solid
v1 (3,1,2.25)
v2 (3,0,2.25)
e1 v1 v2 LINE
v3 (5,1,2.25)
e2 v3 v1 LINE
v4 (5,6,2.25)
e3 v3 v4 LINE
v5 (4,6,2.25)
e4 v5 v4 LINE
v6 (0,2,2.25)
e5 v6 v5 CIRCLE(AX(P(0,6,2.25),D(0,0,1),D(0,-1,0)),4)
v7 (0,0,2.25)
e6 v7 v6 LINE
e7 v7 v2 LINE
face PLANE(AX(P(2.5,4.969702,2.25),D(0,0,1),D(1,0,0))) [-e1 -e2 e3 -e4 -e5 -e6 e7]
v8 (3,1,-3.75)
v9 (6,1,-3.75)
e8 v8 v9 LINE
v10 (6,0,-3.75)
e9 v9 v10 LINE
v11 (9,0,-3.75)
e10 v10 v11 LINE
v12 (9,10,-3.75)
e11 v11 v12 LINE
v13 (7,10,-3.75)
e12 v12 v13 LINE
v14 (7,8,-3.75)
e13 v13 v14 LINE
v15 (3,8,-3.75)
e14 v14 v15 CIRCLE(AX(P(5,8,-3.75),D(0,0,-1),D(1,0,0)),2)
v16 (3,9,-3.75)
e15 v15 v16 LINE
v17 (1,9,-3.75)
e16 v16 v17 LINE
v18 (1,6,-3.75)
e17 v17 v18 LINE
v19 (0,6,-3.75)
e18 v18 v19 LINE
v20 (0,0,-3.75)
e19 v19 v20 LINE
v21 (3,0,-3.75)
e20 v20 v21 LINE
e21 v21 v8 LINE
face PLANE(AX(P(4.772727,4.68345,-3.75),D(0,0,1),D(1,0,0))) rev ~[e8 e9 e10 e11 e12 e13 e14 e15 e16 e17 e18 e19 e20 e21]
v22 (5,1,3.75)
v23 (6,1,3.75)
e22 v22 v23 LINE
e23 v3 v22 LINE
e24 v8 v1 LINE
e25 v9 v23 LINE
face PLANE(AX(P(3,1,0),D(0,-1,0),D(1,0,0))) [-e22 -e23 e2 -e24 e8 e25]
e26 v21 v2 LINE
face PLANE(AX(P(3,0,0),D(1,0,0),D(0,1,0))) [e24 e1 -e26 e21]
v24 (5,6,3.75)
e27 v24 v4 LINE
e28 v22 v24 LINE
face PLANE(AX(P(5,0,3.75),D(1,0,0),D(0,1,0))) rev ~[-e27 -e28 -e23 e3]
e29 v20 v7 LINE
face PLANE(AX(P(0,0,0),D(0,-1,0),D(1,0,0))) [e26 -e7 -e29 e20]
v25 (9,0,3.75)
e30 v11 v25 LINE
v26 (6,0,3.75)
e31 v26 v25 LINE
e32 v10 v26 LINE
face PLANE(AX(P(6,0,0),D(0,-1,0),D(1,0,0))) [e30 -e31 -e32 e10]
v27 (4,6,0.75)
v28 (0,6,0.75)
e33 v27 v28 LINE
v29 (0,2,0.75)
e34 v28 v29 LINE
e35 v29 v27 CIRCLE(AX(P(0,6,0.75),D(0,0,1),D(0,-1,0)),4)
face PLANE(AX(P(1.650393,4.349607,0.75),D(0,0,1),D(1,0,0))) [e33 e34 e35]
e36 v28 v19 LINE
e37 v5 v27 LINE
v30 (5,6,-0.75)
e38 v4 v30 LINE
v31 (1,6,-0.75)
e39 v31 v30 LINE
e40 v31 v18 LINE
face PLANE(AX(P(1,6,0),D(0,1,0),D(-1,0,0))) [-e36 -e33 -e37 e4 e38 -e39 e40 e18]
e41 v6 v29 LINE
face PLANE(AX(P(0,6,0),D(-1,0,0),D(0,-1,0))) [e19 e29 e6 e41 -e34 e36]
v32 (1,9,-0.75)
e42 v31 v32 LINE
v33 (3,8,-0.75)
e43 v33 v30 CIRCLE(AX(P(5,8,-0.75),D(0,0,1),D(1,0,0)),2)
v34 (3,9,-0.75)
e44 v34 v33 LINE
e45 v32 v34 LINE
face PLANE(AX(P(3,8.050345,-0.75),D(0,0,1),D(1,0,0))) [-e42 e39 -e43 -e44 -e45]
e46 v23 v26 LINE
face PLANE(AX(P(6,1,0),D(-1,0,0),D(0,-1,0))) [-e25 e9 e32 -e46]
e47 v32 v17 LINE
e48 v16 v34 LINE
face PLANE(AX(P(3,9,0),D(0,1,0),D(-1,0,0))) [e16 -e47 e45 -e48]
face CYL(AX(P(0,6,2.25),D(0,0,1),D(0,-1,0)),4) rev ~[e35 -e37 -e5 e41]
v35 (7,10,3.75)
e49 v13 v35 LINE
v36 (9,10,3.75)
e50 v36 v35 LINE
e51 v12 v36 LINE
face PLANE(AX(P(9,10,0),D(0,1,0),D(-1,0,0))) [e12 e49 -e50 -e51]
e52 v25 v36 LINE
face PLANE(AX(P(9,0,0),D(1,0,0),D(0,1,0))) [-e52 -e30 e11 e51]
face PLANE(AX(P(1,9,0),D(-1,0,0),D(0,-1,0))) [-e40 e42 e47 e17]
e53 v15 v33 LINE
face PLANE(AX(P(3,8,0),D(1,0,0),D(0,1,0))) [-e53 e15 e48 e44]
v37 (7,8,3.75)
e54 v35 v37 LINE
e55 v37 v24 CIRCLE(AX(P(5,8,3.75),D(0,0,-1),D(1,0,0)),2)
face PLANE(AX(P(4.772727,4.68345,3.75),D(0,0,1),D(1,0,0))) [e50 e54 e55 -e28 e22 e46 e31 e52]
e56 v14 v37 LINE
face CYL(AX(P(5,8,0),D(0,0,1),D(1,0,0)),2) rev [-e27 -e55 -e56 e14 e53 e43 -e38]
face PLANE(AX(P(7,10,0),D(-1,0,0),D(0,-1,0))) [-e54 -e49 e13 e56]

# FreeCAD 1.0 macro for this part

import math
import FreeCAD as App
import Part
import Sketcher
from FreeCAD import Vector


def add_polygon(sketch, points):
    """Adds a closed chain of lines whose ends are joined by coincident constraints."""
    first, n = sketch.GeometryCount, len(points)
    for a, b in zip(points, points[1:] + points[:1]):
        sketch.addGeometry(Part.LineSegment(App.Vector(*a, 0), App.Vector(*b, 0)), False)
    for i in range(n):
        sketch.addConstraint(Sketcher.Constraint("Coincident", first + i, 2, first + (i + 1) % n, 1))

doc = App.newDocument("Part")
body = doc.addObject("PartDesign::Body", "Body")

# Sketch on XY plane
sketch1 = body.newObject("Sketcher::SketchObject", "Sketch")
sketch1.AttachmentSupport = (doc.getObject("XY_Plane"), [""])
sketch1.MapMode = "FlatFace"
sketch1.addGeometry([
    Part.LineSegment(Vector(0, 6, 0), Vector(0, 0, 0)),  # 0
    Part.LineSegment(Vector(0, 0, 0), Vector(3, 0, 0)),  # 1
    Part.LineSegment(Vector(3, 0, 0), Vector(3, 1, 0)),  # 2
    Part.LineSegment(Vector(3, 1, 0), Vector(6, 1, 0)),  # 3
    Part.LineSegment(Vector(6, 1, 0), Vector(6, 0, 0)),  # 4
    Part.LineSegment(Vector(6, 0, 0), Vector(9, 0, 0)),  # 5
    Part.LineSegment(Vector(9, 0, 0), Vector(9, 10, 0)),  # 6
    Part.LineSegment(Vector(9, 10, 0), Vector(7, 10, 0)),  # 7
    Part.LineSegment(Vector(7, 10, 0), Vector(7, 8, 0)),  # 8
    Part.ArcOfCircle(Part.Circle(Vector(5, 8, 0), Vector(0, 0, 1), 2), math.radians(180), math.radians(360)),  # 9
    Part.LineSegment(Vector(3, 8, 0), Vector(3, 9, 0)),  # 10
    Part.LineSegment(Vector(3, 9, 0), Vector(1, 9, 0)),  # 11
    Part.LineSegment(Vector(1, 9, 0), Vector(1, 6, 0)),  # 12
    Part.LineSegment(Vector(1, 6, 0), Vector(0, 6, 0)),  # 13
], False)
sketch1.addConstraint([
    Sketcher.Constraint("Coincident", 0, 2, 1, 1),
    Sketcher.Constraint("Coincident", 1, 2, 2, 1),
    Sketcher.Constraint("Coincident", 2, 2, 3, 1),
    Sketcher.Constraint("Coincident", 3, 2, 4, 1),
    Sketcher.Constraint("Coincident", 4, 2, 5, 1),
    Sketcher.Constraint("Coincident", 5, 2, 6, 1),
    Sketcher.Constraint("Coincident", 6, 2, 7, 1),
    Sketcher.Constraint("Coincident", 7, 2, 8, 1),
    Sketcher.Constraint("Tangent", 8, 2, 9, 2),
    Sketcher.Constraint("Tangent", 9, 1, 10, 1),
    Sketcher.Constraint("Coincident", 10, 2, 11, 1),
    Sketcher.Constraint("Coincident", 11, 2, 12, 1),
    Sketcher.Constraint("Coincident", 12, 2, 13, 1),
    Sketcher.Constraint("Coincident", 13, 2, 0, 1),
    Sketcher.Constraint("Vertical", 0),
    Sketcher.Constraint("Horizontal", 1),
    Sketcher.Constraint("Vertical", 2),
    Sketcher.Constraint("Horizontal", 3),
    Sketcher.Constraint("Vertical", 4),
    Sketcher.Constraint("Horizontal", 5),
    Sketcher.Constraint("Vertical", 6),
    Sketcher.Constraint("Horizontal", 7),
    Sketcher.Constraint("Vertical", 8),
    Sketcher.Constraint("Vertical", 10),
    Sketcher.Constraint("Horizontal", 11),
    Sketcher.Constraint("Vertical", 12),
    Sketcher.Constraint("Horizontal", 13),
    Sketcher.Constraint("Coincident", 0, 2, -1, 1),
    Sketcher.Constraint("PointOnObject", 4, 2, -1),
    Sketcher.Constraint("Vertical", 2, 2, 9, 1),
    Sketcher.Constraint("Equal", 1, 3),
    Sketcher.Constraint("Equal", 3, 5),
    Sketcher.Constraint("Equal", 7, 11),
    Sketcher.Constraint("Equal", 13, 2),
    Sketcher.Constraint("Equal", 11, 8),
    Sketcher.Constraint("Equal", 4, 10),
    Sketcher.Constraint("Equal", 5, 12),
    Sketcher.Constraint("Radius", 9, 2.0),
    Sketcher.Constraint("DistanceX", 1, 1, 1, 2, 3.0),
    Sketcher.Constraint("DistanceY", 0, 2, 0, 1, 6.0),
])
pad1 = body.newObject("PartDesign::Pad", "Pad")
pad1.Profile = sketch1
pad1.Length = 7.5
pad1.Midplane = True

# Sketch on XY plane
sketch2 = body.newObject("Sketcher::SketchObject", "Sketch001")
sketch2.AttachmentSupport = (doc.getObject("XY_Plane"), [""])
sketch2.MapMode = "FlatFace"
sketch2.AttachmentOffset = App.Placement(Vector(0, 0, 3.75), App.Rotation())
add_polygon(sketch2, [(1, 10.1), (1, 6), (5, 6), (5, 10.1)])  # lines 0-3
sketch2.addConstraint([
    Sketcher.Constraint("Vertical", 0),
    Sketcher.Constraint("Horizontal", 1),
    Sketcher.Constraint("Vertical", 2),
    Sketcher.Constraint("Horizontal", 3),
    Sketcher.Constraint("DistanceX", 1, 1, 1, 2, 4.0),
    Sketcher.Constraint("DistanceX", -1, 1, 0, 2, 1.0),
    Sketcher.Constraint("DistanceY", -1, 1, 0, 2, 6.0),
    Sketcher.Constraint("DistanceY", 0, 2, 0, 1, 4.10069),
])
pocket1 = body.newObject("PartDesign::Pocket", "Pocket")
pocket1.Profile = sketch2
pocket1.Length = 4.5

# Sketch on XY plane
sketch3 = body.newObject("Sketcher::SketchObject", "Sketch002")
sketch3.AttachmentSupport = (doc.getObject("XY_Plane"), [""])
sketch3.MapMode = "FlatFace"
sketch3.AttachmentOffset = App.Placement(Vector(0, 0, 3.75), App.Rotation())
add_polygon(sketch3, [(0, 10), (0, 0), (5, 0), (5, 10)])  # lines 0-3
sketch3.addConstraint([
    Sketcher.Constraint("Vertical", 0),
    Sketcher.Constraint("Horizontal", 1),
    Sketcher.Constraint("Vertical", 2),
    Sketcher.Constraint("Horizontal", 3),
    Sketcher.Constraint("Coincident", 0, 2, -1, 1),
    Sketcher.Constraint("DistanceX", 1, 1, 1, 2, 5.0),
    Sketcher.Constraint("DistanceY", 0, 2, 0, 1, 9.939404),
])
pocket2 = body.newObject("PartDesign::Pocket", "Pocket001")
pocket2.Profile = sketch3
pocket2.Length = 1.5

# Sketch on XY plane
sketch4 = body.newObject("Sketcher::SketchObject", "Sketch003")
sketch4.AttachmentSupport = (doc.getObject("XY_Plane"), [""])
sketch4.MapMode = "FlatFace"
sketch4.AttachmentOffset = App.Placement(Vector(0, 0, 2.25), App.Rotation())
sketch4.addGeometry([
    Part.LineSegment(Vector(4, 6, 0), Vector(0, 6, 0)),
    Part.LineSegment(Vector(0, 6, 0), Vector(0, 2, 0)),
    Part.ArcOfCircle(Part.Circle(Vector(0, 6, 0), Vector(0, 0, 1), 4), math.radians(-90), math.radians(0)),
], False)
sketch4.addConstraint([
    Sketcher.Constraint("Coincident", 0, 2, 1, 1),
    Sketcher.Constraint("Coincident", 1, 2, 2, 1),
    Sketcher.Constraint("Coincident", 2, 2, 0, 1),
    Sketcher.Constraint("Horizontal", 0),
    Sketcher.Constraint("Vertical", 1),
    Sketcher.Constraint("Coincident", 0, 2, 2, 3),
    Sketcher.Constraint("PointOnObject", 2, 3, -2),
    Sketcher.Constraint("Radius", 2, 4.0),
    Sketcher.Constraint("DistanceY", -1, 1, 2, 3, 6.0),
])
pocket3 = body.newObject("PartDesign::Pocket", "Pocket002")
pocket3.Profile = sketch4
pocket3.Length = 1.5

doc.recompute()
